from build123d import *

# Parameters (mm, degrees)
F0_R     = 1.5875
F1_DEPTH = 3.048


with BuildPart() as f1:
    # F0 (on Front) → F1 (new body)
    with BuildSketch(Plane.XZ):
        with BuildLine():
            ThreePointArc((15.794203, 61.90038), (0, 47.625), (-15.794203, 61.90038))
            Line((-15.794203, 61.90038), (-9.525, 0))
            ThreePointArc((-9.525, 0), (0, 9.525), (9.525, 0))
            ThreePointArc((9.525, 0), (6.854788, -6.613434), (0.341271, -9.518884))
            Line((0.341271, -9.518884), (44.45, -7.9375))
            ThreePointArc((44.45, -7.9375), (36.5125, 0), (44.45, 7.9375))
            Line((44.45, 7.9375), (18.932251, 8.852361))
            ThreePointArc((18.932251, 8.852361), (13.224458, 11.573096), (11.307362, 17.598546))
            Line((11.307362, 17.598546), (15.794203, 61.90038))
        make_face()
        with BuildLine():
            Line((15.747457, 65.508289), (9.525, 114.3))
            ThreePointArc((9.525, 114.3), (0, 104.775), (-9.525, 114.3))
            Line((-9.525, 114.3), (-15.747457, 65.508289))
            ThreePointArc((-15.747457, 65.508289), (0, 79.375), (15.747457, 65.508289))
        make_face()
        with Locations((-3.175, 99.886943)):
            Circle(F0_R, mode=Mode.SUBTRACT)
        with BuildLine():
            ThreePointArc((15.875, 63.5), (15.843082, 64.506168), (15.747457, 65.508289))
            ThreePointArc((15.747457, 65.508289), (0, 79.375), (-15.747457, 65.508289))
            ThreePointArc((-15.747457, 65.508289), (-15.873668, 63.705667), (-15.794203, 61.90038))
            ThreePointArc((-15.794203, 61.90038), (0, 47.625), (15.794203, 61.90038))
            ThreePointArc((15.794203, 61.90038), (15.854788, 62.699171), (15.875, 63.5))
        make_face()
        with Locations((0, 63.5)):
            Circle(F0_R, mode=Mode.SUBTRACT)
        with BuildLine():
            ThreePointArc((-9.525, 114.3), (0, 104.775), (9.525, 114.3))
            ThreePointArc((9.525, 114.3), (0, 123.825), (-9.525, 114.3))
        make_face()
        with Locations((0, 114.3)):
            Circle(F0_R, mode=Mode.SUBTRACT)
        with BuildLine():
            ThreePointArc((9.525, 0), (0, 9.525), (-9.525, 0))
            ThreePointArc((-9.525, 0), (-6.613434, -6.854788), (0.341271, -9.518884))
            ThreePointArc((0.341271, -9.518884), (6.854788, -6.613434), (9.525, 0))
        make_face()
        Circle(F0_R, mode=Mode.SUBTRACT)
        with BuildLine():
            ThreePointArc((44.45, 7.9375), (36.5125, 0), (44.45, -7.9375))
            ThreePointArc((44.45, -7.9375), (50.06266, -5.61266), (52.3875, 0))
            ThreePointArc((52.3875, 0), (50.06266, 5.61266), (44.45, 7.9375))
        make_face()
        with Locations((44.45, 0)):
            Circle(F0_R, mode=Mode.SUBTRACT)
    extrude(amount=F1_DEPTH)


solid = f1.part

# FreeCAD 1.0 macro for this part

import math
import FreeCAD as App
import Part
import Sketcher
Q = App.Units.Quantity

doc = App.newDocument("Part")
body = doc.addObject("PartDesign::Body", "Body")

# Sketch on XZ plane
sketch1 = body.newObject("Sketcher::SketchObject", "Sketch")
sketch1.AttachmentSupport = (doc.getObject("XZ_Plane"), [""])
sketch1.MapMode = "FlatFace"
sketch1.addGeometry([
    Part.LineSegment(App.Vector(-15.794203, 61.90038, 0), App.Vector(-9.525, 0, 0)),  # 0
    Part.ArcOfCircle(Part.Circle(App.Vector(-0.000001, -0.000001, 0), App.Vector(0, 0, 1), 9.524999), math.radians(179.999996), math.radians(272.053294)),  # 1
    Part.LineSegment(App.Vector(0.341271, -9.518884, 0), App.Vector(44.45, -7.9375, 0)),  # 2
    Part.ArcOfCircle(Part.Circle(App.Vector(44.45, 0, 0), App.Vector(0, 0, 1), 7.9375), math.radians(-89.999998), math.radians(-0.000002)),  # 3
    Part.ArcOfCircle(Part.Circle(App.Vector(44.45, 0, 0), App.Vector(0, 0, 1), 7.9375), math.radians(0.000002), math.radians(89.999998)),  # 4
    Part.LineSegment(App.Vector(44.45, 7.9375, 0), App.Vector(18.932251, 8.852361, 0)),  # 5
    Part.ArcOfCircle(Part.Circle(App.Vector(19.217098, 16.797456, 0), App.Vector(0, 0, 1), 7.950199), math.radians(174.21686), math.radians(267.946715)),  # 6
    Part.LineSegment(App.Vector(11.307362, 17.598546, 0), App.Vector(15.794203, 61.90038, 0)),  # 7
    Part.ArcOfCircle(Part.Circle(App.Vector(0.000021, 63.499997, 0), App.Vector(0, 0, 1), 15.874979), math.radians(-5.783131), math.radians(0.000012)),  # 8
    Part.ArcOfCircle(Part.Circle(App.Vector(-0.000071, 63.499996, 0), App.Vector(0, 0, 1), 15.875071), math.radians(0.000015), math.radians(7.267739)),  # 9
    Part.LineSegment(App.Vector(15.747457, 65.508289, 0), App.Vector(9.525, 114.3, 0)),  # 10
    Part.ArcOfCircle(Part.Circle(App.Vector(0, 114.3, 0), App.Vector(0, 0, 1), 9.525), math.radians(0), math.radians(180)),  # 11
    Part.LineSegment(App.Vector(-9.525, 114.3, 0), App.Vector(-15.747457, 65.508289, 0)),  # 12
    Part.ArcOfCircle(Part.Circle(App.Vector(-0.000025, 63.5, 0), App.Vector(0, 0, 1), 15.874976), math.radians(172.732231), math.radians(185.783143)),  # 13
    Part.Circle(App.Vector(0, 0, 0), App.Vector(0, 0, 1), 1.5875),  # 14
    Part.Circle(App.Vector(44.45, 0, 0), App.Vector(0, 0, 1), 1.5875),  # 15
    Part.Circle(App.Vector(0, 63.5, 0), App.Vector(0, 0, 1), 1.5875),  # 16
    Part.Circle(App.Vector(-3.175, 99.886943, 0), App.Vector(0, 0, 1), 1.5875),  # 17
    Part.Circle(App.Vector(0, 114.3, 0), App.Vector(0, 0, 1), 1.5875),  # 18
], False)
sketch1.addConstraint([
    Sketcher.Constraint("Coincident", 0, 2, 1, 1),
    Sketcher.Constraint("Coincident", 1, 2, 2, 1),
    Sketcher.Constraint("Coincident", 2, 2, 3, 1),
    Sketcher.Constraint("Coincident", 3, 2, 4, 1),
    Sketcher.Constraint("Coincident", 4, 2, 5, 1),
    Sketcher.Constraint("Coincident", 5, 2, 6, 2),
    Sketcher.Constraint("Coincident", 6, 1, 7, 1),
    Sketcher.Constraint("Coincident", 7, 2, 8, 1),
    Sketcher.Constraint("Coincident", 8, 2, 9, 1),
    Sketcher.Constraint("Coincident", 9, 2, 10, 1),
    Sketcher.Constraint("Coincident", 10, 2, 11, 1),
    Sketcher.Constraint("Coincident", 11, 2, 12, 1),
    Sketcher.Constraint("Coincident", 12, 2, 13, 1),
    Sketcher.Constraint("Coincident", 13, 2, 0, 1),
    Sketcher.Constraint("Coincident", 1, 3, -1, 1),
    Sketcher.Constraint("Coincident", 14, 3, -1, 1),
    Sketcher.Constraint("Coincident", 4, 3, 3, 3),
    Sketcher.Constraint("Coincident", 15, 3, 3, 3),
    Sketcher.Constraint("Coincident", 18, 3, 11, 3),
    Sketcher.Constraint("PointOnObject", 3, 3, -1),
    Sketcher.Constraint("PointOnObject", 11, 3, -2),
    Sketcher.Constraint("PointOnObject", 16, 3, -2),
    Sketcher.Constraint("PointOnObject", 0, 2, -1),
    Sketcher.Constraint("PointOnObject", 3, 2, -1),
    Sketcher.Constraint("Diameter", 14, Q("0.125 in")),
    Sketcher.Constraint("Diameter", 15, Q("0.125 in")),
    Sketcher.Constraint("Diameter", 16, Q("0.125 in")),
    Sketcher.Constraint("Diameter", 17, Q("0.125 in")),
    Sketcher.Constraint("Diameter", 18, Q("0.125 in")),
    Sketcher.Constraint("Radius", 1, Q("0.375 in")),
    Sketcher.Constraint("Radius", 3, Q("0.3125 in")),
    Sketcher.Constraint("Radius", 6, Q("0.313 in")),
    Sketcher.Constraint("Radius", 11, Q("0.375 in")),
    Sketcher.Constraint("DistanceY", 8, 3, 11, 3, Q("2.0000001 in")),
    Sketcher.Constraint("DistanceY", 9, 3, 11, 3, Q("2.0000002 in")),
    Sketcher.Constraint("DistanceY", 13, 3, 11, 3, Q("2 in")),
    Sketcher.Constraint("DistanceY", 16, 3, 11, 3, Q("2 in")),
    Sketcher.Constraint("DistanceY", 8, 2, 10, 2, Q("2 in")),
    Sketcher.Constraint("DistanceY", 9, 3, 11, 2, Q("2.0000002 in")),
    Sketcher.Constraint("DistanceY", -1, 1, 8, 3, Q("2.4999999 in")),
    Sketcher.Constraint("DistanceY", -1, 1, 8, 2, Q("2.5 in")),
    Sketcher.Constraint("DistanceX", 17, 3, 10, 2, Q("0.5 in")),
    Sketcher.Constraint("DistanceX", -1, 1, 3, 3, Q("1.75 in")),
    Sketcher.Constraint("DistanceX", -1, 1, 2, 2, Q("1.75 in")),
    Sketcher.Constraint("DistanceX", -1, 1, 4, 2, Q("1.75 in")),
    Sketcher.Constraint("DistanceX", 10, 2, 8, 2, Q("0.25 in")),
    Sketcher.Constraint("Radius", 8, 15.874979),
    Sketcher.Constraint("Radius", 9, 15.875071),
    Sketcher.Constraint("Radius", 13, 15.874976),
    Sketcher.Constraint("DistanceX", 1, 3, 6, 3, 19.217099),
    Sketcher.Constraint("Distance", 0, 62.217039),
    Sketcher.Constraint("Distance", 10, 49.186889),
    Sketcher.Constraint("Distance", 12, 49.186889),
    Sketcher.Constraint("DistanceX", -1, 1, 1, 2, 0.341271),
    Sketcher.Constraint("DistanceX", -1, 1, 5, 2, 18.932251),
    Sketcher.Constraint("DistanceY", -1, 1, 5, 2, 8.852361),
    Sketcher.Constraint("DistanceX", -1, 1, 6, 1, 11.307362),
    Sketcher.Constraint("DistanceY", -1, 1, 7, 2, 61.90038),
    Sketcher.Constraint("DistanceY", -1, 1, 12, 2, 65.508289),
    Sketcher.Constraint("DistanceY", -1, 1, 17, 3, 99.886943),
])
pad1 = body.newObject("PartDesign::Pad", "Pad")
pad1.Profile = sketch1
pad1.Length = Q("0.12 in")

doc.recompute()
